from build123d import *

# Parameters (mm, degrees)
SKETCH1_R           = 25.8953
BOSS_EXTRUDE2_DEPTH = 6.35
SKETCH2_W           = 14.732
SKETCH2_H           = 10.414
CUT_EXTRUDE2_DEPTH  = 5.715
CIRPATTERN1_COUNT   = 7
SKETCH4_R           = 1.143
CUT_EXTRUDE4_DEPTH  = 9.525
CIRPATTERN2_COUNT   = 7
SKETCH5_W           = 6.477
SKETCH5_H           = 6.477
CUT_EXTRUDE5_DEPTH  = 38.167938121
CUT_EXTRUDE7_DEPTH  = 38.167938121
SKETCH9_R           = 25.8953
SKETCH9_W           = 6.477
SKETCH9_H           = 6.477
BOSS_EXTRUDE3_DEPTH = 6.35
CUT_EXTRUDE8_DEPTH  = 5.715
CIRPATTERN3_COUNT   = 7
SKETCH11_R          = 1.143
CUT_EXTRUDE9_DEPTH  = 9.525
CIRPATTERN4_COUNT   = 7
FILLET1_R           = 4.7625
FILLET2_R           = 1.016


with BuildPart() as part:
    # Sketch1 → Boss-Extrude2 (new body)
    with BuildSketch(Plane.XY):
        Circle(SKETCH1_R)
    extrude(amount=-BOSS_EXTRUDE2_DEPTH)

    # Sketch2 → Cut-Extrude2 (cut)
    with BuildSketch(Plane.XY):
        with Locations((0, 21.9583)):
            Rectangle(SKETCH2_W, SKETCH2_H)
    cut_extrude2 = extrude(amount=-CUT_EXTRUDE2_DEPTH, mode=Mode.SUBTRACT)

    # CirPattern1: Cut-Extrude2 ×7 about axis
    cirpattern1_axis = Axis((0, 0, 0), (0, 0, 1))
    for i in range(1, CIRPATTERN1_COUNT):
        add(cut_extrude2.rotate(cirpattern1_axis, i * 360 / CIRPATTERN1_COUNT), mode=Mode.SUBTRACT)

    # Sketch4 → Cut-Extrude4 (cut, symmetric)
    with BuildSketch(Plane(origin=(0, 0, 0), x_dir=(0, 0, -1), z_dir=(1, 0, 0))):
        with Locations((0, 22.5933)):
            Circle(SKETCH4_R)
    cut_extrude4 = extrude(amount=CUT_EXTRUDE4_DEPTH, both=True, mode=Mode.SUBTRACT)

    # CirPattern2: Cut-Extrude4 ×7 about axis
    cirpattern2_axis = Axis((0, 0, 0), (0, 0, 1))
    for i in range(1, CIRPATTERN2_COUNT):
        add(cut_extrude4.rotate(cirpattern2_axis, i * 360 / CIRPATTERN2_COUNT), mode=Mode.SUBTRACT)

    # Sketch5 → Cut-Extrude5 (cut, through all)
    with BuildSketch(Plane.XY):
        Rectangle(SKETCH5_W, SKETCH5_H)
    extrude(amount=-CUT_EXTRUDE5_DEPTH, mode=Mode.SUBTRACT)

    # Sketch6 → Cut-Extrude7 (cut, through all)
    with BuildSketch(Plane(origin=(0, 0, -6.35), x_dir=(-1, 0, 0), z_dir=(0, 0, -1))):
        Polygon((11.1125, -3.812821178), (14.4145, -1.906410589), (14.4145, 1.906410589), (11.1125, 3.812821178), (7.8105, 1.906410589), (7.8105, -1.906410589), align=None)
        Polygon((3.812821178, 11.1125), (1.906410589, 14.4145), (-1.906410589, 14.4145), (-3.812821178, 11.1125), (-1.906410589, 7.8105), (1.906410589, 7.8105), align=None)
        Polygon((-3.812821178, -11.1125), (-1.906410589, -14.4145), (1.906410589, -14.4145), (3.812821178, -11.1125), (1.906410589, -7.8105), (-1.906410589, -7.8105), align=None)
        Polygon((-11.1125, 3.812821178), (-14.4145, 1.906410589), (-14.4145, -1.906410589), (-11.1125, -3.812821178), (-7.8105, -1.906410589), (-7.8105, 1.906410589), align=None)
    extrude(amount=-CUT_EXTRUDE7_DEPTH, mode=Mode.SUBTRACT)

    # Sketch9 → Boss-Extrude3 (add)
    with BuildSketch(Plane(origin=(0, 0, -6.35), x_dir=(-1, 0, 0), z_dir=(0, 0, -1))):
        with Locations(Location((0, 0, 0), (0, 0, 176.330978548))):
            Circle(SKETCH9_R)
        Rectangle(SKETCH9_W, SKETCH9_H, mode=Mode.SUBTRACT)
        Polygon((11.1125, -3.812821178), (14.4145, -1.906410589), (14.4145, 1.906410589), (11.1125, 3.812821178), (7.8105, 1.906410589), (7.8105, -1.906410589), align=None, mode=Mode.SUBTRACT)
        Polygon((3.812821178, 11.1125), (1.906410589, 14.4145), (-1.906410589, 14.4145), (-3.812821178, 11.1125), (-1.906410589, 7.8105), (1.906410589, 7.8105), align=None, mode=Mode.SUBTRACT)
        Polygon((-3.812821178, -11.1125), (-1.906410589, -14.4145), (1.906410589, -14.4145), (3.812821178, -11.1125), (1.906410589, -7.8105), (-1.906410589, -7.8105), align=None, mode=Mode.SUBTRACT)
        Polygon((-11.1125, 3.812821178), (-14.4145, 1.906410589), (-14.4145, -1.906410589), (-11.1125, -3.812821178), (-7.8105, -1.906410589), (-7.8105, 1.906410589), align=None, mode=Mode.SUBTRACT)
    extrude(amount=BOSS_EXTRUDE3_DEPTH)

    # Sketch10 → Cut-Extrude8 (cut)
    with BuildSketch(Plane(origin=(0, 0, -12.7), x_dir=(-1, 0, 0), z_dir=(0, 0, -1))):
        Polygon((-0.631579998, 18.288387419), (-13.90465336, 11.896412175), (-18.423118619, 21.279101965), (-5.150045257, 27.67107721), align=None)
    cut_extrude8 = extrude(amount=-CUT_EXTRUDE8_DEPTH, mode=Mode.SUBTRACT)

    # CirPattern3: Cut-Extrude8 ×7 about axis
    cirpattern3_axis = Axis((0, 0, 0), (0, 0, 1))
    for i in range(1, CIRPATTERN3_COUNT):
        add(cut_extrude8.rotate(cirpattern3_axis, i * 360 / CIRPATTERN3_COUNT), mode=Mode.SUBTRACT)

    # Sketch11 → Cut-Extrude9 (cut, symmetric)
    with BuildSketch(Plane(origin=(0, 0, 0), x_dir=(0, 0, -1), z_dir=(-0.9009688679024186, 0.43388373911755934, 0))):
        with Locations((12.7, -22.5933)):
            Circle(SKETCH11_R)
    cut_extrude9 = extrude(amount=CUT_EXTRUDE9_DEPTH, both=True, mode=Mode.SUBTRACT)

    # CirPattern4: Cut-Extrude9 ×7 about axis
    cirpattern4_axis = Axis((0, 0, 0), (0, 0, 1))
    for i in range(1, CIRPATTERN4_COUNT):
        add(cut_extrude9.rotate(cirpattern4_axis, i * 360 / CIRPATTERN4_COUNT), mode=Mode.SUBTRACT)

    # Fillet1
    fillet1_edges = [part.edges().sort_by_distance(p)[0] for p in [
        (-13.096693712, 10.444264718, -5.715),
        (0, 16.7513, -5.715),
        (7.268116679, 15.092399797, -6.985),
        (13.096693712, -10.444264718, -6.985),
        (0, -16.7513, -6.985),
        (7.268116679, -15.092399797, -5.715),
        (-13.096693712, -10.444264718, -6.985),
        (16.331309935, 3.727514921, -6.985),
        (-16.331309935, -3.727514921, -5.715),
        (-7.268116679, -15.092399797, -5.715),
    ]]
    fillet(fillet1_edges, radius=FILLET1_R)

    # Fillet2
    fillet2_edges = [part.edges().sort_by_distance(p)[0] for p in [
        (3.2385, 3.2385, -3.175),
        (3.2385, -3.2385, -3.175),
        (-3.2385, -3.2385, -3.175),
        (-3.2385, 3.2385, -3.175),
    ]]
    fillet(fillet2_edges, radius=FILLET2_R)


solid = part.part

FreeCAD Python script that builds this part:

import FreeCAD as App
import Part
import Sketcher
from FreeCAD import Vector
Q = App.Units.Quantity


def edges_at(feature, points):
    """Names of the edges that pass closest to the given points."""
    edges = feature.Shape.Edges
    near = lambda p: min(range(len(edges)), key=lambda i: edges[i].distToShape(Part.Vertex(*p))[0])
    return sorted({f"Edge{near(p) + 1}" for p in points})

doc = App.newDocument("Part")
body = doc.addObject("PartDesign::Body", "Body")

# Sketch on XY plane
sketch1 = body.newObject("Sketcher::SketchObject", "Sketch")
sketch1.AttachmentSupport = (doc.getObject("XY_Plane"), [""])
sketch1.MapMode = "FlatFace"
sketch1.addGeometry(Part.Circle(Vector(0, 0, 0), Vector(0, 0, 1), 26), False)
sketch1.addConstraint([
    Sketcher.Constraint("Coincident", 0, 3, -1, 1),
    Sketcher.Constraint("Diameter", 0, Q("2.039 in")),
])
pad1 = body.newObject("PartDesign::Pad", "Pad")
pad1.Profile = sketch1
pad1.Length = Q("0.25 in")
pad1.Reversed = True

# Sketch on XY plane
sketch2 = body.newObject("Sketcher::SketchObject", "Sketch001")
sketch2.AttachmentSupport = (doc.getObject("XY_Plane"), [""])
sketch2.MapMode = "FlatFace"
sketch2.addGeometry([
    Part.LineSegment(Vector(-7, 27, 0), Vector(-7, 17, 0)),
    Part.LineSegment(Vector(-7, 17, 0), Vector(7, 17, 0)),
    Part.LineSegment(Vector(7, 17, 0), Vector(7, 27, 0)),
    Part.LineSegment(Vector(7, 27, 0), Vector(-7, 27, 0)),
], False)
sketch2.addConstraint([
    Sketcher.Constraint("Coincident", 0, 2, 1, 1),
    Sketcher.Constraint("Coincident", 1, 2, 2, 1),
    Sketcher.Constraint("Coincident", 2, 2, 3, 1),
    Sketcher.Constraint("Coincident", 3, 2, 0, 1),
    Sketcher.Constraint("Vertical", 0),
    Sketcher.Constraint("Horizontal", 1),
    Sketcher.Constraint("Vertical", 2),
    Sketcher.Constraint("Horizontal", 3),
    Sketcher.Constraint("DistanceX", 1, 1, 1, 2, Q("0.58 in")),
    Sketcher.Constraint("DistanceY", 0, 2, 0, 1, Q("0.41 in")),
    Sketcher.Constraint("DistanceX", 0, 2, -1, 1, Q("0.29 in")),
    Sketcher.Constraint("DistanceY", -1, 1, 0, 2, Q("0.6595 in")),
])
pocket1 = body.newObject("PartDesign::Pocket", "Pocket")
pocket1.Profile = sketch2
pocket1.Length = Q("0.225 in")
doc.recompute()

polarpattern = body.newObject("PartDesign::PolarPattern", "PolarPattern")
polarpattern.Originals = [pocket1]
polarpattern.Axis = (doc.getObject("Z_Axis"), [""])
polarpattern.Angle = 360
polarpattern.Occurrences = 7
body.Tip = polarpattern

# Sketch on YZ plane
sketch3 = body.newObject("Sketcher::SketchObject", "Sketch002")
sketch3.AttachmentSupport = (doc.getObject("YZ_Plane"), [""])
sketch3.MapMode = "FlatFace"
sketch3.addGeometry(Part.Circle(Vector(22.6, 0, 0), Vector(0, 0, 1), 1.1), False)
sketch3.addConstraint([
    Sketcher.Constraint("PointOnObject", 0, 3, -1),
    Sketcher.Constraint("Diameter", 0, Q("0.09 in")),
    Sketcher.Constraint("DistanceX", -1, 1, 0, 3, Q("0.8895 in")),
])
pocket2 = body.newObject("PartDesign::Pocket", "Pocket001")
pocket2.Profile = sketch3
pocket2.Length = Q("0.75 in")
pocket2.Midplane = True
doc.recompute()

polarpattern2 = body.newObject("PartDesign::PolarPattern", "PolarPattern001")
polarpattern2.Originals = [pocket2]
polarpattern2.Axis = (doc.getObject("Z_Axis"), [""])
polarpattern2.Angle = 360
polarpattern2.Occurrences = 7
body.Tip = polarpattern2

# Sketch on XY plane
sketch4 = body.newObject("Sketcher::SketchObject", "Sketch003")
sketch4.AttachmentSupport = (doc.getObject("XY_Plane"), [""])
sketch4.MapMode = "FlatFace"
sketch4.addGeometry([
    Part.LineSegment(Vector(-3, 3, 0), Vector(-3, -3, 0)),
    Part.LineSegment(Vector(-3, -3, 0), Vector(3, -3, 0)),
    Part.LineSegment(Vector(3, -3, 0), Vector(3, 3, 0)),
    Part.LineSegment(Vector(3, 3, 0), Vector(-3, 3, 0)),
], False)
sketch4.addConstraint([
    Sketcher.Constraint("Coincident", 0, 2, 1, 1),
    Sketcher.Constraint("Coincident", 1, 2, 2, 1),
    Sketcher.Constraint("Coincident", 2, 2, 3, 1),
    Sketcher.Constraint("Coincident", 3, 2, 0, 1),
    Sketcher.Constraint("Vertical", 0),
    Sketcher.Constraint("Horizontal", 1),
    Sketcher.Constraint("Vertical", 2),
    Sketcher.Constraint("Horizontal", 3),
    Sketcher.Constraint("Symmetric", 0, 2, 2, 2, -1, 1),
    Sketcher.Constraint("Equal", 3, 0),
    Sketcher.Constraint("DistanceX", 1, 1, 1, 2, Q("0.255 in")),
])
pocket3 = body.newObject("PartDesign::Pocket", "Pocket002")
pocket3.Profile = sketch4
pocket3.Type = "ThroughAll"

# Sketch on XY plane
sketch5 = body.newObject("Sketcher::SketchObject", "Sketch004")
sketch5.AttachmentSupport = (doc.getObject("XY_Plane"), [""])
sketch5.MapMode = "FlatFace"
sketch5.AttachmentOffset = App.Placement(Vector(0, 0, -0.25 * 25.4), App.Rotation())
sketch5.addGeometry([
    Part.LineSegment(Vector(-11.1, -3.8, 0), Vector(-14.4, -1.9, 0)),  # 0
    Part.LineSegment(Vector(-14.4, -1.9, 0), Vector(-14.4, 1.9, 0)),  # 1
    Part.LineSegment(Vector(-14.4, 1.9, 0), Vector(-11.1, 3.8, 0)),  # 2
    Part.LineSegment(Vector(-11.1, 3.8, 0), Vector(-7.8, 1.9, 0)),  # 3
    Part.LineSegment(Vector(-7.8, 1.9, 0), Vector(-7.8, -1.9, 0)),  # 4
    Part.LineSegment(Vector(-7.8, -1.9, 0), Vector(-11.1, -3.8, 0)),  # 5
    Part.LineSegment(Vector(-3.8, 11.1, 0), Vector(-1.9, 14.4, 0)),  # 6
    Part.LineSegment(Vector(-1.9, 14.4, 0), Vector(1.9, 14.4, 0)),  # 7
    Part.LineSegment(Vector(1.9, 14.4, 0), Vector(3.8, 11.1, 0)),  # 8
    Part.LineSegment(Vector(3.8, 11.1, 0), Vector(1.9, 7.8, 0)),  # 9
    Part.LineSegment(Vector(1.9, 7.8, 0), Vector(-1.9, 7.8, 0)),  # 10
    Part.LineSegment(Vector(-1.9, 7.8, 0), Vector(-3.8, 11.1, 0)),  # 11
    Part.LineSegment(Vector(3.8, -11.1, 0), Vector(1.9, -14.4, 0)),  # 12
    Part.LineSegment(Vector(1.9, -14.4, 0), Vector(-1.9, -14.4, 0)),  # 13
    Part.LineSegment(Vector(-1.9, -14.4, 0), Vector(-3.8, -11.1, 0)),  # 14
    Part.LineSegment(Vector(-3.8, -11.1, 0), Vector(-1.9, -7.8, 0)),  # 15
    Part.LineSegment(Vector(-1.9, -7.8, 0), Vector(1.9, -7.8, 0)),  # 16
    Part.LineSegment(Vector(1.9, -7.8, 0), Vector(3.8, -11.1, 0)),  # 17
    Part.LineSegment(Vector(11.1, 3.8, 0), Vector(14.4, 1.9, 0)),  # 18
    Part.LineSegment(Vector(14.4, 1.9, 0), Vector(14.4, -1.9, 0)),  # 19
    Part.LineSegment(Vector(14.4, -1.9, 0), Vector(11.1, -3.8, 0)),  # 20
    Part.LineSegment(Vector(11.1, -3.8, 0), Vector(7.8, -1.9, 0)),  # 21
    Part.LineSegment(Vector(7.8, -1.9, 0), Vector(7.8, 1.9, 0)),  # 22
    Part.LineSegment(Vector(7.8, 1.9, 0), Vector(11.1, 3.8, 0)),  # 23
], False)
sketch5.addConstraint([
    Sketcher.Constraint("Coincident", 0, 2, 1, 1),
    Sketcher.Constraint("Coincident", 1, 2, 2, 1),
    Sketcher.Constraint("Coincident", 2, 2, 3, 1),
    Sketcher.Constraint("Coincident", 3, 2, 4, 1),
    Sketcher.Constraint("Coincident", 4, 2, 5, 1),
    Sketcher.Constraint("Coincident", 5, 2, 0, 1),
    Sketcher.Constraint("Coincident", 6, 2, 7, 1),
    Sketcher.Constraint("Coincident", 7, 2, 8, 1),
    Sketcher.Constraint("Coincident", 8, 2, 9, 1),
    Sketcher.Constraint("Coincident", 9, 2, 10, 1),
    Sketcher.Constraint("Coincident", 10, 2, 11, 1),
    Sketcher.Constraint("Coincident", 11, 2, 6, 1),
    Sketcher.Constraint("Coincident", 12, 2, 13, 1),
    Sketcher.Constraint("Coincident", 13, 2, 14, 1),
    Sketcher.Constraint("Coincident", 14, 2, 15, 1),
    Sketcher.Constraint("Coincident", 15, 2, 16, 1),
    Sketcher.Constraint("Coincident", 16, 2, 17, 1),
    Sketcher.Constraint("Coincident", 17, 2, 12, 1),
    Sketcher.Constraint("Coincident", 18, 2, 19, 1),
    Sketcher.Constraint("Coincident", 19, 2, 20, 1),
    Sketcher.Constraint("Coincident", 20, 2, 21, 1),
    Sketcher.Constraint("Coincident", 21, 2, 22, 1),
    Sketcher.Constraint("Coincident", 22, 2, 23, 1),
    Sketcher.Constraint("Coincident", 23, 2, 18, 1),
    Sketcher.Constraint("Vertical", 1),
    Sketcher.Constraint("Vertical", 4),
    Sketcher.Constraint("Horizontal", 7),
    Sketcher.Constraint("Horizontal", 10),
    Sketcher.Constraint("Horizontal", 13),
    Sketcher.Constraint("Horizontal", 16),
    Sketcher.Constraint("Vertical", 19),
    Sketcher.Constraint("Vertical", 22),
    Sketcher.Constraint("Symmetric", 6, 2, 12, 2, -1, 1),
    Sketcher.Constraint("Symmetric", 8, 2, 14, 2, -1, 1),
    Sketcher.Constraint("Symmetric", 9, 2, 15, 2, -1, 1),
    Sketcher.Constraint("Symmetric", 11, 2, 17, 2, -1, 1),
    Sketcher.Constraint("Symmetric", 0, 2, 18, 2, -1, 1),
    Sketcher.Constraint("Symmetric", 2, 2, 20, 2, -1, 1),
    Sketcher.Constraint("Symmetric", 3, 2, 21, 2, -1, 1),
    Sketcher.Constraint("Symmetric", 5, 2, 23, 2, -1, 1),
    Sketcher.Constraint("Symmetric", 8, 2, 11, 2, -2),
    Sketcher.Constraint("Symmetric", 5, 2, 20, 2, -2),
    Sketcher.Constraint("Parallel", 0, 3),
    Sketcher.Constraint("Parallel", 2, 5),
    Sketcher.Constraint("Perpendicular", 3, 6),
    Sketcher.Constraint("Perpendicular", 5, 8),
    Sketcher.Constraint("Parallel", 6, 9),
    Sketcher.Constraint("Parallel", 8, 11),
    Sketcher.Constraint("Parallel", 11, 14),
    Sketcher.Constraint("Parallel", 14, 17),
    Sketcher.Constraint("Perpendicular", 17, 20),
    Sketcher.Constraint("Parallel", 20, 23),
    Sketcher.Constraint("Horizontal", 1, 2, 3, 2),
    Sketcher.Constraint("Horizontal", 0, 2, 4, 2),
    Sketcher.Constraint("Vertical", 7, 2, 9, 2),
    Sketcher.Constraint("Equal", 16, 1),
    Sketcher.Constraint("Equal", 5, 6),
    Sketcher.Constraint("Angle", 0, Q("150 deg")),
    Sketcher.Constraint("DistanceX", 1, 2, 2, 2, Q("0.13 in")),
    Sketcher.Constraint("DistanceX", 2, 2, -1, 1, Q("0.4375 in")),
    Sketcher.Constraint("DistanceY", -1, 1, 8, 2, Q("0.4375 in")),
    Sketcher.Constraint("DistanceX", 7, 1, 7, 2, Q("3.812821 mm")),
])
pocket4 = body.newObject("PartDesign::Pocket", "Pocket003")
pocket4.Profile = sketch5
pocket4.Type = "ThroughAll"
pocket4.Reversed = True

# Sketch on XY plane
sketch6 = body.newObject("Sketcher::SketchObject", "Sketch005")
sketch6.AttachmentSupport = (doc.getObject("XY_Plane"), [""])
sketch6.MapMode = "FlatFace"
sketch6.AttachmentOffset = App.Placement(Vector(0, 0, -0.25 * 25.4), App.Rotation())
sketch6.addGeometry([
    Part.Circle(Vector(0, 0, 0), Vector(0, 0, 1), 25.9),  # 0
    Part.LineSegment(Vector(-14.4, -1.9, 0), Vector(-11.1, -3.8, 0)),  # 1
    Part.LineSegment(Vector(-11.1, -3.8, 0), Vector(-7.8, -1.9, 0)),  # 2
    Part.LineSegment(Vector(-7.8, -1.9, 0), Vector(-7.8, 1.9, 0)),  # 3
    Part.LineSegment(Vector(-7.8, 1.9, 0), Vector(-11.1, 3.8, 0)),  # 4
    Part.LineSegment(Vector(-11.1, 3.8, 0), Vector(-14.4, 1.9, 0)),  # 5
    Part.LineSegment(Vector(-14.4, 1.9, 0), Vector(-14.4, -1.9, 0)),  # 6
    Part.LineSegment(Vector(-1.9, 14.4, 0), Vector(-3.8, 11.1, 0)),  # 7
    Part.LineSegment(Vector(-3.8, 11.1, 0), Vector(-1.9, 7.8, 0)),  # 8
    Part.LineSegment(Vector(-1.9, 7.8, 0), Vector(1.9, 7.8, 0)),  # 9
    Part.LineSegment(Vector(1.9, 7.8, 0), Vector(3.8, 11.1, 0)),  # 10
    Part.LineSegment(Vector(3.8, 11.1, 0), Vector(1.9, 14.4, 0)),  # 11
    Part.LineSegment(Vector(1.9, 14.4, 0), Vector(-1.9, 14.4, 0)),  # 12
    Part.LineSegment(Vector(-3.2, -3.2, 0), Vector(3.2, -3.2, 0)),  # 13
    Part.LineSegment(Vector(3.2, -3.2, 0), Vector(3.2, 3.2, 0)),  # 14
    Part.LineSegment(Vector(3.2, 3.2, 0), Vector(-3.2, 3.2, 0)),  # 15
    Part.LineSegment(Vector(-3.2, 3.2, 0), Vector(-3.2, -3.2, 0)),  # 16
    Part.LineSegment(Vector(1.9, -14.4, 0), Vector(3.8, -11.1, 0)),  # 17
    Part.LineSegment(Vector(3.8, -11.1, 0), Vector(1.9, -7.8, 0)),  # 18
    Part.LineSegment(Vector(1.9, -7.8, 0), Vector(-1.9, -7.8, 0)),  # 19
    Part.LineSegment(Vector(-1.9, -7.8, 0), Vector(-3.8, -11.1, 0)),  # 20
    Part.LineSegment(Vector(-3.8, -11.1, 0), Vector(-1.9, -14.4, 0)),  # 21
    Part.LineSegment(Vector(-1.9, -14.4, 0), Vector(1.9, -14.4, 0)),  # 22
    Part.LineSegment(Vector(14.4, 1.9, 0), Vector(11.1, 3.8, 0)),  # 23
    Part.LineSegment(Vector(11.1, 3.8, 0), Vector(7.8, 1.9, 0)),  # 24
    Part.LineSegment(Vector(7.8, 1.9, 0), Vector(7.8, -1.9, 0)),  # 25
    Part.LineSegment(Vector(7.8, -1.9, 0), Vector(11.1, -3.8, 0)),  # 26
    Part.LineSegment(Vector(11.1, -3.8, 0), Vector(14.4, -1.9, 0)),  # 27
    Part.LineSegment(Vector(14.4, -1.9, 0), Vector(14.4, 1.9, 0)),  # 28
], False)
sketch6.addConstraint([
    Sketcher.Constraint("Coincident", 1, 2, 2, 1),
    Sketcher.Constraint("Coincident", 2, 2, 3, 1),
    Sketcher.Constraint("Coincident", 3, 2, 4, 1),
    Sketcher.Constraint("Coincident", 4, 2, 5, 1),
    Sketcher.Constraint("Coincident", 5, 2, 6, 1),
    Sketcher.Constraint("Coincident", 6, 2, 1, 1),
    Sketcher.Constraint("Coincident", 7, 2, 8, 1),
    Sketcher.Constraint("Coincident", 8, 2, 9, 1),
    Sketcher.Constraint("Coincident", 9, 2, 10, 1),
    Sketcher.Constraint("Coincident", 10, 2, 11, 1),
    Sketcher.Constraint("Coincident", 11, 2, 12, 1),
    Sketcher.Constraint("Coincident", 12, 2, 7, 1),
    Sketcher.Constraint("Coincident", 13, 2, 14, 1),
    Sketcher.Constraint("Coincident", 14, 2, 15, 1),
    Sketcher.Constraint("Coincident", 15, 2, 16, 1),
    Sketcher.Constraint("Coincident", 16, 2, 13, 1),
    Sketcher.Constraint("Coincident", 17, 2, 18, 1),
    Sketcher.Constraint("Coincident", 18, 2, 19, 1),
    Sketcher.Constraint("Coincident", 19, 2, 20, 1),
    Sketcher.Constraint("Coincident", 20, 2, 21, 1),
    Sketcher.Constraint("Coincident", 21, 2, 22, 1),
    Sketcher.Constraint("Coincident", 22, 2, 17, 1),
    Sketcher.Constraint("Coincident", 23, 2, 24, 1),
    Sketcher.Constraint("Coincident", 24, 2, 25, 1),
    Sketcher.Constraint("Coincident", 25, 2, 26, 1),
    Sketcher.Constraint("Coincident", 26, 2, 27, 1),
    Sketcher.Constraint("Coincident", 27, 2, 28, 1),
    Sketcher.Constraint("Coincident", 28, 2, 23, 1),
    Sketcher.Constraint("Vertical", 3),
    Sketcher.Constraint("Vertical", 6),
    Sketcher.Constraint("Horizontal", 9),
    Sketcher.Constraint("Horizontal", 12),
    Sketcher.Constraint("Horizontal", 13),
    Sketcher.Constraint("Vertical", 14),
    Sketcher.Constraint("Horizontal", 15),
    Sketcher.Constraint("Vertical", 16),
    Sketcher.Constraint("Horizontal", 19),
    Sketcher.Constraint("Horizontal", 22),
    Sketcher.Constraint("Vertical", 25),
    Sketcher.Constraint("Vertical", 28),
    Sketcher.Constraint("Coincident", 0, 3, -1, 1),
    Sketcher.Constraint("Symmetric", 13, 2, 15, 2, -1, 1),
    Sketcher.Constraint("Symmetric", 7, 2, 17, 2, -1, 1),
    Sketcher.Constraint("Symmetric", 8, 2, 18, 2, -1, 1),
    Sketcher.Constraint("Symmetric", 10, 2, 20, 2, -1, 1),
    Sketcher.Constraint("Symmetric", 11, 2, 21, 2, -1, 1),
    Sketcher.Constraint("Symmetric", 1, 2, 23, 2, -1, 1),
    Sketcher.Constraint("Symmetric", 2, 2, 24, 2, -1, 1),
    Sketcher.Constraint("Symmetric", 4, 2, 26, 2, -1, 1),
    Sketcher.Constraint("Symmetric", 5, 2, 27, 2, -1, 1),
    Sketcher.Constraint("Symmetric", 7, 2, 10, 2, -2),
    Sketcher.Constraint("Symmetric", 4, 2, 23, 2, -2),
    Sketcher.Constraint("Parallel", 1, 4),
    Sketcher.Constraint("Parallel", 2, 5),
    Sketcher.Constraint("Perpendicular", 4, 7),
    Sketcher.Constraint("Perpendicular", 5, 8),
    Sketcher.Constraint("Parallel", 7, 10),
    Sketcher.Constraint("Parallel", 8, 11),
    Sketcher.Constraint("Parallel", 10, 17),
    Sketcher.Constraint("Parallel", 17, 20),
    Sketcher.Constraint("Perpendicular", 20, 23),
    Sketcher.Constraint("Parallel", 23, 26),
    Sketcher.Constraint("Horizontal", 3, 2, 5, 2),
    Sketcher.Constraint("Horizontal", 2, 2, 6, 2),
    Sketcher.Constraint("Vertical", 9, 2, 11, 2),
    Sketcher.Constraint("Equal", 22, 3),
    Sketcher.Constraint("Equal", 15, 14),
    Sketcher.Constraint("Equal", 5, 7),
    Sketcher.Constraint("Diameter", 0, Q("2.039 in")),
    Sketcher.Constraint("Angle", 1, Q("-30 deg")),
    Sketcher.Constraint("DistanceX", 13, 1, 13, 2, Q("0.255 in")),
    Sketcher.Constraint("DistanceX", 1, 2, 2, 2, Q("0.13 in")),
    Sketcher.Constraint("DistanceY", 14, 2, 9, 2, Q("0.18 in")),
    Sketcher.Constraint("DistanceX", 3, 2, 15, 2, Q("0.18 in")),
    Sketcher.Constraint("DistanceX", 9, 1, 9, 2, Q("3.812821 mm")),
])
pad2 = body.newObject("PartDesign::Pad", "Pad001")
pad2.Profile = sketch6
pad2.Length = Q("0.25 in")
pad2.Reversed = True

# Sketch on XY plane
sketch7 = body.newObject("Sketcher::SketchObject", "Sketch006")
sketch7.AttachmentSupport = (doc.getObject("XY_Plane"), [""])
sketch7.MapMode = "FlatFace"
sketch7.AttachmentOffset = App.Placement(Vector(0, 0, -0.5 * 25.4), App.Rotation())
sketch7.addGeometry([
    Part.LineSegment(Vector(14, 12, 0), Vector(1, 18, 0)),
    Part.LineSegment(Vector(1, 18, 0), Vector(5, 28, 0)),
    Part.LineSegment(Vector(5, 28, 0), Vector(18, 21, 0)),
    Part.LineSegment(Vector(18, 21, 0), Vector(14, 12, 0)),
], False)
sketch7.addConstraint([
    Sketcher.Constraint("Coincident", 0, 2, 1, 1),
    Sketcher.Constraint("Coincident", 1, 2, 2, 1),
    Sketcher.Constraint("Coincident", 2, 2, 3, 1),
    Sketcher.Constraint("Coincident", 3, 2, 0, 1),
    Sketcher.Constraint("Perpendicular", 0, 1),
    Sketcher.Constraint("Perpendicular", 1, 2),
    Sketcher.Constraint("Perpendicular", 2, 3),
    Sketcher.Constraint("Distance", 0, Q("0.58 in")),
    Sketcher.Constraint("Distance", 1, Q("0.41 in")),
    Sketcher.Constraint("DistanceY", -1, 1, 2, 2, Q("21.279102 mm")),
    Sketcher.Constraint("DistanceX", -1, 1, 0, 2, Q("0.63158 mm")),
    Sketcher.Constraint("DistanceX", -1, 1, 2, 2, Q("18.423119 mm")),
])
pocket5 = body.newObject("PartDesign::Pocket", "Pocket004")
pocket5.Profile = sketch7
pocket5.Length = Q("0.225 in")
pocket5.Reversed = True
doc.recompute()

polarpattern3 = body.newObject("PartDesign::PolarPattern", "PolarPattern002")
polarpattern3.Originals = [pocket5]
polarpattern3.Axis = (doc.getObject("Z_Axis"), [""])
polarpattern3.Angle = 360
polarpattern3.Occurrences = 7
body.Tip = polarpattern3

# Sketch on an angled plane
sketch8 = body.newObject("Sketcher::SketchObject", "Sketch007")
sketch8.Placement = App.Placement(Vector(0, 0, 0), App.Rotation(Vector(0, 0, -1), Vector(-0.433883739, -0.900968868, 0), Vector(-0.900968868, 0.433883739, 0), "ZXY"))
sketch8.addGeometry(Part.Circle(Vector(12.7, -22.6, 0), Vector(0, 0, 1), 1.1), False)
sketch8.addConstraint([
    Sketcher.Constraint("Diameter", 0, Q("0.09 in")),
    Sketcher.Constraint("DistanceX", -1, 1, 0, 3, Q("0.5 in")),
    Sketcher.Constraint("DistanceY", 0, 3, -1, 1, Q("0.8895 in")),
])
pocket6 = body.newObject("PartDesign::Pocket", "Pocket005")
pocket6.Profile = sketch8
pocket6.Length = Q("0.75 in")
pocket6.Midplane = True
doc.recompute()

polarpattern4 = body.newObject("PartDesign::PolarPattern", "PolarPattern003")
polarpattern4.Originals = [pocket6]
polarpattern4.Axis = (doc.getObject("Z_Axis"), [""])
polarpattern4.Angle = 360
polarpattern4.Occurrences = 7
body.Tip = polarpattern4
doc.recompute()

fillet = body.newObject("PartDesign::Fillet", "Fillet")
fillet.Base = (polarpattern4, edges_at(polarpattern4, [
    (-13.097, 10.444, -5.715),
    (0, 16.751, -5.715),
    (7.268, 15.092, -6.985),
    (13.097, -10.444, -6.985),
    (0, -16.751, -6.985),
    (7.268, -15.092, -5.715),
    (-13.097, -10.444, -6.985),
    (16.331, 3.728, -6.985),
    (-16.331, -3.728, -5.715),
    (-7.268, -15.092, -5.715),
]))
fillet.Radius = Q("0.1875 in")
doc.recompute()

fillet2 = body.newObject("PartDesign::Fillet", "Fillet001")
fillet2.Base = (fillet, edges_at(fillet, [
    (3.239, 3.239, -3.175),
    (3.239, -3.239, -3.175),
    (-3.239, -3.239, -3.175),
    (-3.239, 3.239, -3.175),
]))
fillet2.Radius = Q("0.04 in")

doc.recompute()
